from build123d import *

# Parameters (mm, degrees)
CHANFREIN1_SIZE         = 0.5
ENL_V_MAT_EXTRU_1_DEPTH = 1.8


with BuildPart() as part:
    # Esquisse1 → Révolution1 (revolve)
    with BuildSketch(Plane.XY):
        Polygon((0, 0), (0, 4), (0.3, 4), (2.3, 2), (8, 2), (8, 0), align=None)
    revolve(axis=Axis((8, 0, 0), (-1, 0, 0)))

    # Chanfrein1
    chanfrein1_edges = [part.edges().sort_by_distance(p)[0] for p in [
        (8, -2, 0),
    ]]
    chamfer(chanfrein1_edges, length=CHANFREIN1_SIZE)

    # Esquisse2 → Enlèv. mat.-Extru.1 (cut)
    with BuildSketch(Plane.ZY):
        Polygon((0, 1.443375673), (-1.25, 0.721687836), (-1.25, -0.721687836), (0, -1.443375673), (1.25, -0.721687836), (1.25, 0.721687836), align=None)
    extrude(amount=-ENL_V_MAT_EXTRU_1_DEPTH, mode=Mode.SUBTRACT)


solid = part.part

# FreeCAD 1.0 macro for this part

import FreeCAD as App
import Part
import Sketcher
from FreeCAD import Vector
Q = App.Units.Quantity


def edges_at(feature, points):
    """Names of the edges that pass closest to the given points."""
    edges = feature.Shape.Edges
    near = lambda p: min(range(len(edges)), key=lambda i: edges[i].distToShape(Part.Vertex(*p))[0])
    return sorted({f"Edge{near(p) + 1}" for p in points})


def add_polygon(sketch, points):
    """Adds a closed chain of lines whose ends are joined by coincident constraints."""
    first, n = sketch.GeometryCount, len(points)
    for a, b in zip(points, points[1:] + points[:1]):
        sketch.addGeometry(Part.LineSegment(App.Vector(*a, 0), App.Vector(*b, 0)), False)
    for i in range(n):
        sketch.addConstraint(Sketcher.Constraint("Coincident", first + i, 2, first + (i + 1) % n, 1))

doc = App.newDocument("Part")
body = doc.addObject("PartDesign::Body", "Body")

# Sketch on XY plane
sketch1 = body.newObject("Sketcher::SketchObject", "Sketch")
sketch1.AttachmentSupport = (doc.getObject("XY_Plane"), [""])
sketch1.MapMode = "FlatFace"
add_polygon(sketch1, [(0, 4), (0, 0), (8, 0), (8, 2), (2.3, 2), (0.3, 4)])  # lines 0-5
sketch1.addConstraint(Sketcher.Constraint("Vertical", 0))
sketch1.addConstraint(Sketcher.Constraint("Horizontal", 1))
sketch1.addConstraint(Sketcher.Constraint("Vertical", 2))
sketch1.addConstraint(Sketcher.Constraint("Horizontal", 3))
sketch1.addConstraint(Sketcher.Constraint("Horizontal", 5))
sketch1.addConstraint(Sketcher.Constraint("Coincident", 0, 2, -1, 1))
sketch1.addConstraint(Sketcher.Constraint("DistanceX", 1, 1, 1, 2, 8.0))
sketch1.addConstraint(Sketcher.Constraint("DistanceY", 0, 2, 0, 1, 4.0))
sketch1.addConstraint(Sketcher.Constraint("DistanceY", 2, 1, 2, 2, 2.0))
sketch1.addConstraint(Sketcher.Constraint("Angle", 4, Q("135 deg")))
sketch1.addConstraint(Sketcher.Constraint("DistanceX", 3, 2, 3, 1, 5.7))
revolution = body.newObject("PartDesign::Revolution", "Revolution")
revolution.Profile = sketch1
revolution.ReferenceAxis = (sketch1, ["H_Axis"])
revolution.Angle = 360
doc.recompute()

chamfer = body.newObject("PartDesign::Chamfer", "Chamfer")
chamfer.Base = (revolution, edges_at(revolution, [(8, -2, 0)]))
chamfer.Size = 0.5

# Sketch on YZ plane
sketch2 = body.newObject("Sketcher::SketchObject", "Sketch001")
sketch2.AttachmentSupport = (doc.getObject("YZ_Plane"), [""])
sketch2.MapMode = "FlatFace"
add_polygon(sketch2, [(1.4, 0), (0.7, -1.2), (-0.7, -1.2), (-1.4, 0), (-0.7, 1.2), (0.7, 1.2)])  # lines 0-5
sketch2.addConstraint(Sketcher.Constraint("Horizontal", 1))
sketch2.addConstraint(Sketcher.Constraint("Horizontal", 4))
sketch2.addConstraint(Sketcher.Constraint("Symmetric", 0, 2, 3, 2, -1, 1))
sketch2.addConstraint(Sketcher.Constraint("Symmetric", 2, 2, 5, 2, -1, 1))
sketch2.addConstraint(Sketcher.Constraint("PointOnObject", 2, 2, -1))
sketch2.addConstraint(Sketcher.Constraint("Parallel", 2, 5))
sketch2.addConstraint(Sketcher.Constraint("Vertical", 1, 2, 3, 2))
sketch2.addConstraint(Sketcher.Constraint("Angle", 0, Q("-120 deg")))
sketch2.addConstraint(Sketcher.Constraint("DistanceY", 1, 2, 3, 2, 2.5))
sketch2.addConstraint(Sketcher.Constraint("DistanceX", 1, 2, 1, 1, 1.443376))
pocket1 = body.newObject("PartDesign::Pocket", "Pocket")
pocket1.Profile = sketch2
pocket1.Length = 1.8
pocket1.Reversed = True

doc.recompute()
